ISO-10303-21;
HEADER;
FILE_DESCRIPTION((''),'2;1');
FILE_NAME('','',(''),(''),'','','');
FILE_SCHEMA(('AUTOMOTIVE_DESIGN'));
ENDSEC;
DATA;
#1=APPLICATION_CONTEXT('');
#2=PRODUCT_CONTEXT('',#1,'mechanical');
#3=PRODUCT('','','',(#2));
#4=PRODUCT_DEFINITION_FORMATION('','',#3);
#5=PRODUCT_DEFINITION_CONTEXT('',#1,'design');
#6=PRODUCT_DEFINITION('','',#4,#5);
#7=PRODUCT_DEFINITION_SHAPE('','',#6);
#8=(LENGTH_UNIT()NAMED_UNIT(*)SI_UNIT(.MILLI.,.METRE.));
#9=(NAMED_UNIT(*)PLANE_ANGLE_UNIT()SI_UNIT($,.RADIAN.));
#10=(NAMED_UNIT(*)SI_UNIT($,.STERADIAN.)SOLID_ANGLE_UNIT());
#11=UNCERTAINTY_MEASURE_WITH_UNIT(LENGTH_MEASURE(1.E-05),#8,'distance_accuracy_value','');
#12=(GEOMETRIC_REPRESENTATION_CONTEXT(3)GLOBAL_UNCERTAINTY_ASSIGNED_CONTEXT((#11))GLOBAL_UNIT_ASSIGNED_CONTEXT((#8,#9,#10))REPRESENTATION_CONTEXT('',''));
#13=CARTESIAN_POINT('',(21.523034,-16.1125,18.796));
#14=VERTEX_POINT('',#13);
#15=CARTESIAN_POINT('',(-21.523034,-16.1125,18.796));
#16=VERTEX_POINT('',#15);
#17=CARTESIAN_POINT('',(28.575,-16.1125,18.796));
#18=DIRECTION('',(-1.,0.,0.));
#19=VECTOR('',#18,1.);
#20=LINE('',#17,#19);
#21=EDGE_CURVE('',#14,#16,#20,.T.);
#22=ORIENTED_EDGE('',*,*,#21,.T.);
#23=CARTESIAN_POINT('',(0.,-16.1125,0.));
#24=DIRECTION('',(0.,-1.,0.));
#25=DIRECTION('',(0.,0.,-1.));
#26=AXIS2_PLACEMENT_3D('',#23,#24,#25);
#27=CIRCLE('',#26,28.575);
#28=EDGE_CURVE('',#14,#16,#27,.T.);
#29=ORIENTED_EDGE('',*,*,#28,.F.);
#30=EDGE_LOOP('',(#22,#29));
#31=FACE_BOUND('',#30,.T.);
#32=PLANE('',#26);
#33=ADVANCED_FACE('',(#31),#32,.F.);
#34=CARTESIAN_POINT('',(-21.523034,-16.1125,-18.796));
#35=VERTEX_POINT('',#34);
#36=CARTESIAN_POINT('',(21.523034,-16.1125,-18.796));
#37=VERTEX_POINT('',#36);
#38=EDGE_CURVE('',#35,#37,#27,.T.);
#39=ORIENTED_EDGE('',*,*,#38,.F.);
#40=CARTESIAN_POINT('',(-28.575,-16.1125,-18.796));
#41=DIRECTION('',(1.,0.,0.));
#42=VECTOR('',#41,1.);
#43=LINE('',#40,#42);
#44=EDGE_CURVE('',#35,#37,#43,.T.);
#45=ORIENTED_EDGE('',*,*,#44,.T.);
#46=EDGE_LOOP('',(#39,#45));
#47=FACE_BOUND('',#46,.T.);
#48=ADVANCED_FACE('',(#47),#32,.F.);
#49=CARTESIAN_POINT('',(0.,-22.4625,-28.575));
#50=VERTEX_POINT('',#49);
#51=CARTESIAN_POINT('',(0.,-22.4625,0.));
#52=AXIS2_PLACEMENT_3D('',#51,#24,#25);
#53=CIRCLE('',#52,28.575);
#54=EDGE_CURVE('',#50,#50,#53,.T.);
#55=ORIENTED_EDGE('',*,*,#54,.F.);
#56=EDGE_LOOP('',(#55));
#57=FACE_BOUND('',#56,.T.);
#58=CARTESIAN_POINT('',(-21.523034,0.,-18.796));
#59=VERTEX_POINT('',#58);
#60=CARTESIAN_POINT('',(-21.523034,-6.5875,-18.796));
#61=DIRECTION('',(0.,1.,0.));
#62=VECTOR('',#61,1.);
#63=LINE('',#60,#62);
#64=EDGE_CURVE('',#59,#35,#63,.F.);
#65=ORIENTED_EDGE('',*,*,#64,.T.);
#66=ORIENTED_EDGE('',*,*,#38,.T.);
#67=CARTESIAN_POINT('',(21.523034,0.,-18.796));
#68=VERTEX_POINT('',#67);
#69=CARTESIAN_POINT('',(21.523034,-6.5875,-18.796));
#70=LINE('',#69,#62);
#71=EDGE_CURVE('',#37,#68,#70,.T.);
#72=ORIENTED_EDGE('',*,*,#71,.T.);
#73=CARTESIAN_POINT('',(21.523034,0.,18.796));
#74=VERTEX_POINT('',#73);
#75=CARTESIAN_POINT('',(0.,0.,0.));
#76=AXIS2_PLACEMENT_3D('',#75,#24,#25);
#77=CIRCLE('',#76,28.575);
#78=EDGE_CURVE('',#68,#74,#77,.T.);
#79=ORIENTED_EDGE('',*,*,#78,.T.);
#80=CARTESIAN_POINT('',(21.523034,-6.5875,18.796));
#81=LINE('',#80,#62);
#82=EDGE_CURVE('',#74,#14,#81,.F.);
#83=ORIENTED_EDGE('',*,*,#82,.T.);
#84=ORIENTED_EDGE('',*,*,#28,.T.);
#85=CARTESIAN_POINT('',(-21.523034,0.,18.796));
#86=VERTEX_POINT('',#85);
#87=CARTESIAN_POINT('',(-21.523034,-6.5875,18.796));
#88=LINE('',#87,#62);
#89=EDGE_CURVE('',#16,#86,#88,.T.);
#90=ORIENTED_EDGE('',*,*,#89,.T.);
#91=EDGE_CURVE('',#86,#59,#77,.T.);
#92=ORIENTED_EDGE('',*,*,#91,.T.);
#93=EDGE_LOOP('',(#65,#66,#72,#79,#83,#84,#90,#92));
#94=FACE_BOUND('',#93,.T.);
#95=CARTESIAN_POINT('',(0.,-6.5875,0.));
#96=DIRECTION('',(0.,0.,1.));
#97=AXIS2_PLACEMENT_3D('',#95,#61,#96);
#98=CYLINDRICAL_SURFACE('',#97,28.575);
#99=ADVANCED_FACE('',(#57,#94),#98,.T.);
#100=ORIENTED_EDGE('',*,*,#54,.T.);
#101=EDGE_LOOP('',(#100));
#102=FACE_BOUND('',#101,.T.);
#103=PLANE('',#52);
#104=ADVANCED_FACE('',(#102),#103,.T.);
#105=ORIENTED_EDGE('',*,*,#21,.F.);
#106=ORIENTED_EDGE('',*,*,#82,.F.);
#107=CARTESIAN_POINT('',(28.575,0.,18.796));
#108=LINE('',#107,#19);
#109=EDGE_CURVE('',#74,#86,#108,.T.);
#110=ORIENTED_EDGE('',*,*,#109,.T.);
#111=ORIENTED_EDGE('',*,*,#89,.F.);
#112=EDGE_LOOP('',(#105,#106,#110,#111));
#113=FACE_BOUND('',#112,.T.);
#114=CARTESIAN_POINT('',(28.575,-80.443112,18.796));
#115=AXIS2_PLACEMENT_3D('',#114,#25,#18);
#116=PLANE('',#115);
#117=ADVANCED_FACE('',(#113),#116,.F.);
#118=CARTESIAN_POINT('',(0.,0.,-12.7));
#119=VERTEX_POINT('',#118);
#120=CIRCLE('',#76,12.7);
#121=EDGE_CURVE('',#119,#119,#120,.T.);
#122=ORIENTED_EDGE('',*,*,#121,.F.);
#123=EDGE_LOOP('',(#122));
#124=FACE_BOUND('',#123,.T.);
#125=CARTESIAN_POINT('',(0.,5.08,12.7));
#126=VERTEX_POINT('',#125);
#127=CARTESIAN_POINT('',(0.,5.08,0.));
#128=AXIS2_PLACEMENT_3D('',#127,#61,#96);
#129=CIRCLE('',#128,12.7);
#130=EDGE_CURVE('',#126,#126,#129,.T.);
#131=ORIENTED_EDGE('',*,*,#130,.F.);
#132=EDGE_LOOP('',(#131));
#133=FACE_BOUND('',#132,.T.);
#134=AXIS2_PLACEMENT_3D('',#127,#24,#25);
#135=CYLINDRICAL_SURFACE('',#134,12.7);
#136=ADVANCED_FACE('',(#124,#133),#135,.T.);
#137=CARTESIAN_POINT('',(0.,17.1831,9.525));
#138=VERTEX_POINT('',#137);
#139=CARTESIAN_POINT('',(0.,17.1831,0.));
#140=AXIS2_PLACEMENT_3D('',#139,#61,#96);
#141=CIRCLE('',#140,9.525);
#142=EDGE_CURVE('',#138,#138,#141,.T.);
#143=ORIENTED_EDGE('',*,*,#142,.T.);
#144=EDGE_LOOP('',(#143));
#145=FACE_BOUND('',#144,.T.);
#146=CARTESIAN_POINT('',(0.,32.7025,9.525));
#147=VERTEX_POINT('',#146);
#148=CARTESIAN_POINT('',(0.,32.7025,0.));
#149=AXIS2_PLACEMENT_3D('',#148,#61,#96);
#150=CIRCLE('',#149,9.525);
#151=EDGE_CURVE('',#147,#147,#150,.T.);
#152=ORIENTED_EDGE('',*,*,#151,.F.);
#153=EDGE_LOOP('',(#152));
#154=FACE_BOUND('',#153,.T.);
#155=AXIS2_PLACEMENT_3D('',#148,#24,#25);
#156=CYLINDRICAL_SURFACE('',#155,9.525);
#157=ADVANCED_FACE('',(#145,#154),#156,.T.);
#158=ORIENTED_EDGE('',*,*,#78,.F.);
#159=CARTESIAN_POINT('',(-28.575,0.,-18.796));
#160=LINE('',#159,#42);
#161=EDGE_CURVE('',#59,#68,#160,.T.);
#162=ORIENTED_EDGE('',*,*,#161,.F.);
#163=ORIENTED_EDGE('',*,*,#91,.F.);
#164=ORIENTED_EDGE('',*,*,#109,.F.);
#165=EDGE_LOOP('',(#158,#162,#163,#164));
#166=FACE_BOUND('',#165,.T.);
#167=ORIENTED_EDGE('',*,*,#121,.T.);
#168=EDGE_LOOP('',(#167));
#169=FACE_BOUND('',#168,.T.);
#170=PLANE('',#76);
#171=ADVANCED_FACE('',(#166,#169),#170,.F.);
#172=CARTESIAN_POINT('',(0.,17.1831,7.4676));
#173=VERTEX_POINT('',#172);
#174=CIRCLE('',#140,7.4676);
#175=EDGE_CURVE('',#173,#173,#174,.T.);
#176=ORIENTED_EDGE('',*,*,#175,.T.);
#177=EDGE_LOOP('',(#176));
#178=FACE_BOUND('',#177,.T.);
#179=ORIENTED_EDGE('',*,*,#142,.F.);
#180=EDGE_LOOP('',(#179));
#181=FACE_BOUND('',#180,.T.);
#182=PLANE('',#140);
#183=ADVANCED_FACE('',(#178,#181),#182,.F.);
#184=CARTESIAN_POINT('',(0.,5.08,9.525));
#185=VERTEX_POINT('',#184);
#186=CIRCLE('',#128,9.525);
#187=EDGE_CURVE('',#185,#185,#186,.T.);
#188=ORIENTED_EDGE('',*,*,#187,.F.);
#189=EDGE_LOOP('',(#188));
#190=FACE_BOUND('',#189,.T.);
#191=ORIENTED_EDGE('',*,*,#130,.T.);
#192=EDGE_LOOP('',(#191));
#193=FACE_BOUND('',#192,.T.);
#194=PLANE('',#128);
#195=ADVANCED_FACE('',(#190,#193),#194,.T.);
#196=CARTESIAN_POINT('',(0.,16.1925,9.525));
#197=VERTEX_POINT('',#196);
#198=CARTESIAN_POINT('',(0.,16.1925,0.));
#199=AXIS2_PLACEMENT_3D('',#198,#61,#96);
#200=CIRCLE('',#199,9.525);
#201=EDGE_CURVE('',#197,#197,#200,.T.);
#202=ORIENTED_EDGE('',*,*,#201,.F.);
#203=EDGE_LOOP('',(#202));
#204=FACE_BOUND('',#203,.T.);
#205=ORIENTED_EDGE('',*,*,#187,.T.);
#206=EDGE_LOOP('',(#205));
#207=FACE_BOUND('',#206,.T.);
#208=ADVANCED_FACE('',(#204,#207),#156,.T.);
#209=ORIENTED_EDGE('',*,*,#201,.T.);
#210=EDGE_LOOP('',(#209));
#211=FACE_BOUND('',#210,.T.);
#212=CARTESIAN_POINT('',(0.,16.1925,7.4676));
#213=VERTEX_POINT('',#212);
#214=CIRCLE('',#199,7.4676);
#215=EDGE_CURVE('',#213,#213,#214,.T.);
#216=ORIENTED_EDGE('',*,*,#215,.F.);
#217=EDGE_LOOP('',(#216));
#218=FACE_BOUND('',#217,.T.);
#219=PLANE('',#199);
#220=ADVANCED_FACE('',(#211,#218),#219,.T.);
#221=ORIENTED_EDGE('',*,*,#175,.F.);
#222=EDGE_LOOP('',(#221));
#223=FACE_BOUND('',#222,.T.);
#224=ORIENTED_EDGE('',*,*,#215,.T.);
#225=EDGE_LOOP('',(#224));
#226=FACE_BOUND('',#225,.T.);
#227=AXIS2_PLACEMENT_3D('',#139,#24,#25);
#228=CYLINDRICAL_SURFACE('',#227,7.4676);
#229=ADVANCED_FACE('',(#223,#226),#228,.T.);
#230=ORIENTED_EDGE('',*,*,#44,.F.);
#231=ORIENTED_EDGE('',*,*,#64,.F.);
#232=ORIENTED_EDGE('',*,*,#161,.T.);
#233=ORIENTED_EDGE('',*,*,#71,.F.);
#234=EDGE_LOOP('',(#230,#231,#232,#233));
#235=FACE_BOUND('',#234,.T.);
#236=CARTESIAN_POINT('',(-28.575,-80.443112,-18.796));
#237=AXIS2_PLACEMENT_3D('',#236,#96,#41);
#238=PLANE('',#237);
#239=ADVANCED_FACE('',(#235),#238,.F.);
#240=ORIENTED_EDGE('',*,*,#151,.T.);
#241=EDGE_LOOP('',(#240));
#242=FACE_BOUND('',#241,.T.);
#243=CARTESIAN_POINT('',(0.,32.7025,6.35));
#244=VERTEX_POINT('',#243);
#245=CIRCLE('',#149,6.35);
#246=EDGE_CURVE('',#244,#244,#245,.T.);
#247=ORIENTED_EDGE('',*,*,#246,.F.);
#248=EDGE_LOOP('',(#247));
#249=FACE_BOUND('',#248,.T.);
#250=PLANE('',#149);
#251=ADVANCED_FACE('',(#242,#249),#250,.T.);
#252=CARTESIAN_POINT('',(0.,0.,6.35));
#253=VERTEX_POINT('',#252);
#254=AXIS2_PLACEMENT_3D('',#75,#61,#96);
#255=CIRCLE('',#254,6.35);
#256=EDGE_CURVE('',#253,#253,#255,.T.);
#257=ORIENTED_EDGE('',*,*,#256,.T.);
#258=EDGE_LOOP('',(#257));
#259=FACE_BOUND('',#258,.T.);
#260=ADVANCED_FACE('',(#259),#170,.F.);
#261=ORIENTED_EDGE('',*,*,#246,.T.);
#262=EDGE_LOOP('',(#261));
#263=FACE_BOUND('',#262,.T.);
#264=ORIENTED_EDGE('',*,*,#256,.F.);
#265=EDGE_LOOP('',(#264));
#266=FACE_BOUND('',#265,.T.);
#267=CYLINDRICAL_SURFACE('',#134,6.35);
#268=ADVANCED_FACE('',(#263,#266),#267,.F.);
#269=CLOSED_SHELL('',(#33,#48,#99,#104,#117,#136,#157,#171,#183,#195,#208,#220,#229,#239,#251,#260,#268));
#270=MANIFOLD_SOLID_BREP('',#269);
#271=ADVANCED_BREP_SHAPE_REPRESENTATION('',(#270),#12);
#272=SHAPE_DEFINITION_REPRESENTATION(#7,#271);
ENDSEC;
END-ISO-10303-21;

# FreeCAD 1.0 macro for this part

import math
import FreeCAD as App
import Part
import Sketcher

V = App.Vector
Q = App.Units.Quantity


def add_polygon(sketch, points):
    """Adds a closed chain of lines whose ends are joined by coincident constraints."""
    first, n = sketch.GeometryCount, len(points)
    for a, b in zip(points, points[1:] + points[:1]):
        sketch.addGeometry(Part.LineSegment(App.Vector(*a, 0), App.Vector(*b, 0)), False)
    for i in range(n):
        sketch.addConstraint(Sketcher.Constraint("Coincident", first + i, 2, first + (i + 1) % n, 1))

doc = App.newDocument("Part")
params = doc.addObject("Spreadsheet::Sheet", "Params")
for row, (alias, value) in enumerate([
    ("sketch1_diameter", "1 in"),
    ("sketch1_diameter2", "0.5 in"),
    ("pad1_length", "0.2 in"),
    ("sketch2_diameter", "0.5 in"),
    ("sketch2_diameter2", "0.75 in"),
    ("pad2_length", "1.0875 in"),
    ("sketch3_diameter", "0.588 in"),
    ("pocket1_length", "0.039 in"),
    ("sketch4_diameter", "2.25 in"),
    ("pad3_length", "6.5875 mm"),
    ("sketch5_radius", "1.125 in"),
    ("pad4_length", "0.625 in"),
    ("sketch6_width", "2.25 in"),
    ("sketch6_height", "0.385 in"),
    ("pocket2_length", "16.1125 mm"),
    ("sketch7_radius", "1.125 in"),
    ("pad5_length", "0.625 in"),
], start=1):
    params.set(f"A{row}", alias)
    params.set(f"B{row}", "=" + value)
    params.setAlias(f"B{row}", alias)

body = doc.addObject("PartDesign::Body", "Body")

# Sketch on XZ plane
sketch1 = body.newObject("Sketcher::SketchObject", "Sketch")
sketch1.AttachmentSupport = (doc.getObject("XZ_Plane"), [""])
sketch1.MapMode = "FlatFace"
sketch1.addGeometry([
    Part.Circle(V(0, 0, 0), V(0, 0, 1), 13),
    Part.Circle(V(0, 0, 0), V(0, 0, 1), 6),
], False)
sketch1.addConstraint([
    Sketcher.Constraint("Coincident", 0, 3, -1, 1),
    Sketcher.Constraint("Coincident", 1, 3, -1, 1),
    Sketcher.Constraint("Diameter", 0, Q("1 in")),
    Sketcher.Constraint("Diameter", 1, Q("0.5 in")),
])
sketch1.setExpression("Constraints[2]", "Params.sketch1_diameter")
sketch1.setExpression("Constraints[3]", "Params.sketch1_diameter2")
pad1 = body.newObject("PartDesign::Pad", "Pad")
pad1.Profile = sketch1
pad1.setExpression("Length", "Params.pad1_length")
pad1.Reversed = True

# Sketch on XZ plane
sketch2 = body.newObject("Sketcher::SketchObject", "Sketch001")
sketch2.AttachmentSupport = (doc.getObject("XZ_Plane"), [""])
sketch2.MapMode = "FlatFace"
sketch2.AttachmentOffset = App.Placement(V(0, 0, -0.2 * 25.4), App.Rotation())
sketch2.addGeometry([
    Part.Circle(V(0, 0, 0), V(0, 0, 1), 10),
    Part.Circle(V(0, 0, 0), V(0, 0, 1), 6),
], False)
sketch2.addConstraint([
    Sketcher.Constraint("Coincident", 0, 3, -1, 1),
    Sketcher.Constraint("Coincident", 1, 3, -1, 1),
    Sketcher.Constraint("Diameter", 1, Q("0.5 in")),
    Sketcher.Constraint("Diameter", 0, Q("0.75 in")),
])
sketch2.setExpression("Constraints[2]", "Params.sketch2_diameter")
sketch2.setExpression("Constraints[3]", "Params.sketch2_diameter2")
pad2 = body.newObject("PartDesign::Pad", "Pad001")
pad2.Profile = sketch2
pad2.setExpression("Length", "Params.pad2_length")
pad2.Reversed = True

# Sketch on XZ plane
sketch3 = body.newObject("Sketcher::SketchObject", "Sketch002")
sketch3.AttachmentSupport = (doc.getObject("XZ_Plane"), [""])
sketch3.MapMode = "FlatFace"
sketch3.AttachmentOffset = App.Placement(V(0, 0, -0.6375 * 25.4), App.Rotation())
add_polygon(sketch3, [(19, 19), (19, -19), (-19, -19), (-19, 19)])  # lines 0-3
sketch3.addGeometry(Part.Circle(V(0, 0, 0), V(0, 0, 1), 7), False)  # 4
sketch3.addConstraint([
    Sketcher.Constraint("Vertical", 0),
    Sketcher.Constraint("Horizontal", 1),
    Sketcher.Constraint("Vertical", 2),
    Sketcher.Constraint("Horizontal", 3),
    Sketcher.Constraint("Coincident", 4, 3, -1, 1),
    Sketcher.Constraint("Symmetric", 0, 2, 2, 2, -1, 1),
    Sketcher.Constraint("Equal", 3, 0),
    Sketcher.Constraint("Diameter", 4, Q("0.588 in")),
    Sketcher.Constraint("DistanceX", 1, 2, 1, 1, Q("37.116 mm")),
])
sketch3.setExpression("Constraints[11]", "Params.sketch3_diameter")
pocket1 = body.newObject("PartDesign::Pocket", "Pocket")
pocket1.Profile = sketch3
pocket1.setExpression("Length", "Params.pocket1_length")

# Sketch on XZ plane
sketch4 = body.newObject("Sketcher::SketchObject", "Sketch003")
sketch4.AttachmentSupport = (doc.getObject("XZ_Plane"), [""])
sketch4.MapMode = "FlatFace"
sketch4.addGeometry(Part.Circle(V(0, 0, 0), V(0, 0, 1), 29), False)
sketch4.addConstraint([
    Sketcher.Constraint("Coincident", 0, 3, -1, 1),
    Sketcher.Constraint("Diameter", 0, Q("2.25 in")),
])
sketch4.setExpression("Constraints[1]", "Params.sketch4_diameter")
pad3 = body.newObject("PartDesign::Pad", "Pad002")
pad3.Profile = sketch4
pad3.setExpression("Length", "Params.pad3_length")

# Sketch on XZ plane
sketch5 = body.newObject("Sketcher::SketchObject", "Sketch004")
sketch5.AttachmentSupport = (doc.getObject("XZ_Plane"), [""])
sketch5.MapMode = "FlatFace"
sketch5.AttachmentOffset = App.Placement(V(0, 0, 6.5875), App.Rotation())
sketch5.addGeometry([
    Part.LineSegment(V(24, -16, 0), V(-24, -16, 0)),
    Part.ArcOfCircle(Part.Circle(V(0, 0, 0), V(0, 0, 1), 29), math.radians(-146), math.radians(-34)),
    Part.ArcOfCircle(Part.Circle(V(0, 0, 0), V(0, 0, 1), 29), math.radians(34), math.radians(146)),
    Part.LineSegment(V(-24, 16, 0), V(24, 16, 0)),
], False)
sketch5.addConstraint([
    Sketcher.Constraint("Coincident", 0, 1, 1, 2),
    Sketcher.Constraint("Coincident", 1, 1, 0, 2),
    Sketcher.Constraint("Coincident", 2, 1, 3, 2),
    Sketcher.Constraint("Coincident", 3, 1, 2, 2),
    Sketcher.Constraint("Horizontal", 0),
    Sketcher.Constraint("Horizontal", 3),
    Sketcher.Constraint("Coincident", 1, 3, -1, 1),
    Sketcher.Constraint("Coincident", 2, 3, -1, 1),
    Sketcher.Constraint("Equal", 1, 2),
    Sketcher.Constraint("Vertical", 0, 1, 2, 1),
    Sketcher.Constraint("Radius", 1, Q("1.125 in")),
    Sketcher.Constraint("DistanceY", 0, 1, 2, 1, Q("1.25 in")),
])
sketch5.setExpression("Constraints[10]", "Params.sketch5_radius")
pad4 = body.newObject("PartDesign::Pad", "Pad003")
pad4.Profile = sketch5
pad4.setExpression("Length", "Params.pad4_length")

# Sketch on XZ plane
sketch6 = body.newObject("Sketcher::SketchObject", "Sketch005")
sketch6.AttachmentSupport = (doc.getObject("XZ_Plane"), [""])
sketch6.MapMode = "FlatFace"
add_polygon(sketch6, [(-29, -29), (-29, -19), (29, -19), (29, -29)])  # lines 0-3
add_polygon(sketch6, [(-29, 19), (-29, 29), (29, 29), (29, 19)])  # lines 4-7
sketch6.addConstraint([
    Sketcher.Constraint("Vertical", 0),
    Sketcher.Constraint("Horizontal", 1),
    Sketcher.Constraint("Vertical", 2),
    Sketcher.Constraint("Horizontal", 3),
    Sketcher.Constraint("Vertical", 4),
    Sketcher.Constraint("Horizontal", 5),
    Sketcher.Constraint("Vertical", 6),
    Sketcher.Constraint("Horizontal", 7),
    Sketcher.Constraint("Symmetric", 2, 2, 4, 2, -1, 1),
    Sketcher.Constraint("Symmetric", 0, 2, 6, 2, -1, 1),
    Sketcher.Constraint("Vertical", 3, 2, 4, 2),
    Sketcher.Constraint("DistanceX", 1, 1, 1, 2, Q("2.25 in")),
    Sketcher.Constraint("DistanceY", 0, 1, 0, 2, Q("0.385 in")),
    Sketcher.Constraint("DistanceY", 0, 2, -1, 1, Q("0.74 in")),
])
sketch6.setExpression("Constraints[19]", "Params.sketch6_width")
sketch6.setExpression("Constraints[20]", "Params.sketch6_height")
pocket2 = body.newObject("PartDesign::Pocket", "Pocket001")
pocket2.Profile = sketch6
pocket2.setExpression("Length", "Params.pocket2_length")
pocket2.Reversed = True

# Sketch on XZ plane
sketch7 = body.newObject("Sketcher::SketchObject", "Sketch006")
sketch7.AttachmentSupport = (doc.getObject("XZ_Plane"), [""])
sketch7.MapMode = "FlatFace"
sketch7.AttachmentOffset = App.Placement(V(0, 0, 6.5875), App.Rotation())
sketch7.addGeometry([
    Part.LineSegment(V(24, 16, 0), V(-24, 16, 0)),
    Part.ArcOfCircle(Part.Circle(V(0, 0, 0), V(0, 0, 1), 29), math.radians(146), math.radians(214)),
    Part.LineSegment(V(-24, -16, 0), V(24, -16, 0)),
    Part.ArcOfCircle(Part.Circle(V(0, 0, 0), V(0, 0, 1), 29), math.radians(-34), math.radians(34)),
], False)
sketch7.addConstraint([
    Sketcher.Constraint("Coincident", 0, 2, 1, 1),
    Sketcher.Constraint("Coincident", 1, 2, 2, 1),
    Sketcher.Constraint("Coincident", 2, 2, 3, 1),
    Sketcher.Constraint("Coincident", 3, 2, 0, 1),
    Sketcher.Constraint("Horizontal", 0),
    Sketcher.Constraint("Horizontal", 2),
    Sketcher.Constraint("Coincident", 1, 3, -1, 1),
    Sketcher.Constraint("Coincident", 3, 3, -1, 1),
    Sketcher.Constraint("Equal", 1, 3),
    Sketcher.Constraint("Vertical", 0, 2, 1, 2),
    Sketcher.Constraint("Radius", 1, Q("1.125 in")),
    Sketcher.Constraint("DistanceY", 1, 2, 0, 2, Q("1.25 in")),
])
sketch7.setExpression("Constraints[10]", "Params.sketch7_radius")
pad5 = body.newObject("PartDesign::Pad", "Pad004")
pad5.Profile = sketch7
pad5.setExpression("Length", "Params.pad5_length")

doc.recompute()
